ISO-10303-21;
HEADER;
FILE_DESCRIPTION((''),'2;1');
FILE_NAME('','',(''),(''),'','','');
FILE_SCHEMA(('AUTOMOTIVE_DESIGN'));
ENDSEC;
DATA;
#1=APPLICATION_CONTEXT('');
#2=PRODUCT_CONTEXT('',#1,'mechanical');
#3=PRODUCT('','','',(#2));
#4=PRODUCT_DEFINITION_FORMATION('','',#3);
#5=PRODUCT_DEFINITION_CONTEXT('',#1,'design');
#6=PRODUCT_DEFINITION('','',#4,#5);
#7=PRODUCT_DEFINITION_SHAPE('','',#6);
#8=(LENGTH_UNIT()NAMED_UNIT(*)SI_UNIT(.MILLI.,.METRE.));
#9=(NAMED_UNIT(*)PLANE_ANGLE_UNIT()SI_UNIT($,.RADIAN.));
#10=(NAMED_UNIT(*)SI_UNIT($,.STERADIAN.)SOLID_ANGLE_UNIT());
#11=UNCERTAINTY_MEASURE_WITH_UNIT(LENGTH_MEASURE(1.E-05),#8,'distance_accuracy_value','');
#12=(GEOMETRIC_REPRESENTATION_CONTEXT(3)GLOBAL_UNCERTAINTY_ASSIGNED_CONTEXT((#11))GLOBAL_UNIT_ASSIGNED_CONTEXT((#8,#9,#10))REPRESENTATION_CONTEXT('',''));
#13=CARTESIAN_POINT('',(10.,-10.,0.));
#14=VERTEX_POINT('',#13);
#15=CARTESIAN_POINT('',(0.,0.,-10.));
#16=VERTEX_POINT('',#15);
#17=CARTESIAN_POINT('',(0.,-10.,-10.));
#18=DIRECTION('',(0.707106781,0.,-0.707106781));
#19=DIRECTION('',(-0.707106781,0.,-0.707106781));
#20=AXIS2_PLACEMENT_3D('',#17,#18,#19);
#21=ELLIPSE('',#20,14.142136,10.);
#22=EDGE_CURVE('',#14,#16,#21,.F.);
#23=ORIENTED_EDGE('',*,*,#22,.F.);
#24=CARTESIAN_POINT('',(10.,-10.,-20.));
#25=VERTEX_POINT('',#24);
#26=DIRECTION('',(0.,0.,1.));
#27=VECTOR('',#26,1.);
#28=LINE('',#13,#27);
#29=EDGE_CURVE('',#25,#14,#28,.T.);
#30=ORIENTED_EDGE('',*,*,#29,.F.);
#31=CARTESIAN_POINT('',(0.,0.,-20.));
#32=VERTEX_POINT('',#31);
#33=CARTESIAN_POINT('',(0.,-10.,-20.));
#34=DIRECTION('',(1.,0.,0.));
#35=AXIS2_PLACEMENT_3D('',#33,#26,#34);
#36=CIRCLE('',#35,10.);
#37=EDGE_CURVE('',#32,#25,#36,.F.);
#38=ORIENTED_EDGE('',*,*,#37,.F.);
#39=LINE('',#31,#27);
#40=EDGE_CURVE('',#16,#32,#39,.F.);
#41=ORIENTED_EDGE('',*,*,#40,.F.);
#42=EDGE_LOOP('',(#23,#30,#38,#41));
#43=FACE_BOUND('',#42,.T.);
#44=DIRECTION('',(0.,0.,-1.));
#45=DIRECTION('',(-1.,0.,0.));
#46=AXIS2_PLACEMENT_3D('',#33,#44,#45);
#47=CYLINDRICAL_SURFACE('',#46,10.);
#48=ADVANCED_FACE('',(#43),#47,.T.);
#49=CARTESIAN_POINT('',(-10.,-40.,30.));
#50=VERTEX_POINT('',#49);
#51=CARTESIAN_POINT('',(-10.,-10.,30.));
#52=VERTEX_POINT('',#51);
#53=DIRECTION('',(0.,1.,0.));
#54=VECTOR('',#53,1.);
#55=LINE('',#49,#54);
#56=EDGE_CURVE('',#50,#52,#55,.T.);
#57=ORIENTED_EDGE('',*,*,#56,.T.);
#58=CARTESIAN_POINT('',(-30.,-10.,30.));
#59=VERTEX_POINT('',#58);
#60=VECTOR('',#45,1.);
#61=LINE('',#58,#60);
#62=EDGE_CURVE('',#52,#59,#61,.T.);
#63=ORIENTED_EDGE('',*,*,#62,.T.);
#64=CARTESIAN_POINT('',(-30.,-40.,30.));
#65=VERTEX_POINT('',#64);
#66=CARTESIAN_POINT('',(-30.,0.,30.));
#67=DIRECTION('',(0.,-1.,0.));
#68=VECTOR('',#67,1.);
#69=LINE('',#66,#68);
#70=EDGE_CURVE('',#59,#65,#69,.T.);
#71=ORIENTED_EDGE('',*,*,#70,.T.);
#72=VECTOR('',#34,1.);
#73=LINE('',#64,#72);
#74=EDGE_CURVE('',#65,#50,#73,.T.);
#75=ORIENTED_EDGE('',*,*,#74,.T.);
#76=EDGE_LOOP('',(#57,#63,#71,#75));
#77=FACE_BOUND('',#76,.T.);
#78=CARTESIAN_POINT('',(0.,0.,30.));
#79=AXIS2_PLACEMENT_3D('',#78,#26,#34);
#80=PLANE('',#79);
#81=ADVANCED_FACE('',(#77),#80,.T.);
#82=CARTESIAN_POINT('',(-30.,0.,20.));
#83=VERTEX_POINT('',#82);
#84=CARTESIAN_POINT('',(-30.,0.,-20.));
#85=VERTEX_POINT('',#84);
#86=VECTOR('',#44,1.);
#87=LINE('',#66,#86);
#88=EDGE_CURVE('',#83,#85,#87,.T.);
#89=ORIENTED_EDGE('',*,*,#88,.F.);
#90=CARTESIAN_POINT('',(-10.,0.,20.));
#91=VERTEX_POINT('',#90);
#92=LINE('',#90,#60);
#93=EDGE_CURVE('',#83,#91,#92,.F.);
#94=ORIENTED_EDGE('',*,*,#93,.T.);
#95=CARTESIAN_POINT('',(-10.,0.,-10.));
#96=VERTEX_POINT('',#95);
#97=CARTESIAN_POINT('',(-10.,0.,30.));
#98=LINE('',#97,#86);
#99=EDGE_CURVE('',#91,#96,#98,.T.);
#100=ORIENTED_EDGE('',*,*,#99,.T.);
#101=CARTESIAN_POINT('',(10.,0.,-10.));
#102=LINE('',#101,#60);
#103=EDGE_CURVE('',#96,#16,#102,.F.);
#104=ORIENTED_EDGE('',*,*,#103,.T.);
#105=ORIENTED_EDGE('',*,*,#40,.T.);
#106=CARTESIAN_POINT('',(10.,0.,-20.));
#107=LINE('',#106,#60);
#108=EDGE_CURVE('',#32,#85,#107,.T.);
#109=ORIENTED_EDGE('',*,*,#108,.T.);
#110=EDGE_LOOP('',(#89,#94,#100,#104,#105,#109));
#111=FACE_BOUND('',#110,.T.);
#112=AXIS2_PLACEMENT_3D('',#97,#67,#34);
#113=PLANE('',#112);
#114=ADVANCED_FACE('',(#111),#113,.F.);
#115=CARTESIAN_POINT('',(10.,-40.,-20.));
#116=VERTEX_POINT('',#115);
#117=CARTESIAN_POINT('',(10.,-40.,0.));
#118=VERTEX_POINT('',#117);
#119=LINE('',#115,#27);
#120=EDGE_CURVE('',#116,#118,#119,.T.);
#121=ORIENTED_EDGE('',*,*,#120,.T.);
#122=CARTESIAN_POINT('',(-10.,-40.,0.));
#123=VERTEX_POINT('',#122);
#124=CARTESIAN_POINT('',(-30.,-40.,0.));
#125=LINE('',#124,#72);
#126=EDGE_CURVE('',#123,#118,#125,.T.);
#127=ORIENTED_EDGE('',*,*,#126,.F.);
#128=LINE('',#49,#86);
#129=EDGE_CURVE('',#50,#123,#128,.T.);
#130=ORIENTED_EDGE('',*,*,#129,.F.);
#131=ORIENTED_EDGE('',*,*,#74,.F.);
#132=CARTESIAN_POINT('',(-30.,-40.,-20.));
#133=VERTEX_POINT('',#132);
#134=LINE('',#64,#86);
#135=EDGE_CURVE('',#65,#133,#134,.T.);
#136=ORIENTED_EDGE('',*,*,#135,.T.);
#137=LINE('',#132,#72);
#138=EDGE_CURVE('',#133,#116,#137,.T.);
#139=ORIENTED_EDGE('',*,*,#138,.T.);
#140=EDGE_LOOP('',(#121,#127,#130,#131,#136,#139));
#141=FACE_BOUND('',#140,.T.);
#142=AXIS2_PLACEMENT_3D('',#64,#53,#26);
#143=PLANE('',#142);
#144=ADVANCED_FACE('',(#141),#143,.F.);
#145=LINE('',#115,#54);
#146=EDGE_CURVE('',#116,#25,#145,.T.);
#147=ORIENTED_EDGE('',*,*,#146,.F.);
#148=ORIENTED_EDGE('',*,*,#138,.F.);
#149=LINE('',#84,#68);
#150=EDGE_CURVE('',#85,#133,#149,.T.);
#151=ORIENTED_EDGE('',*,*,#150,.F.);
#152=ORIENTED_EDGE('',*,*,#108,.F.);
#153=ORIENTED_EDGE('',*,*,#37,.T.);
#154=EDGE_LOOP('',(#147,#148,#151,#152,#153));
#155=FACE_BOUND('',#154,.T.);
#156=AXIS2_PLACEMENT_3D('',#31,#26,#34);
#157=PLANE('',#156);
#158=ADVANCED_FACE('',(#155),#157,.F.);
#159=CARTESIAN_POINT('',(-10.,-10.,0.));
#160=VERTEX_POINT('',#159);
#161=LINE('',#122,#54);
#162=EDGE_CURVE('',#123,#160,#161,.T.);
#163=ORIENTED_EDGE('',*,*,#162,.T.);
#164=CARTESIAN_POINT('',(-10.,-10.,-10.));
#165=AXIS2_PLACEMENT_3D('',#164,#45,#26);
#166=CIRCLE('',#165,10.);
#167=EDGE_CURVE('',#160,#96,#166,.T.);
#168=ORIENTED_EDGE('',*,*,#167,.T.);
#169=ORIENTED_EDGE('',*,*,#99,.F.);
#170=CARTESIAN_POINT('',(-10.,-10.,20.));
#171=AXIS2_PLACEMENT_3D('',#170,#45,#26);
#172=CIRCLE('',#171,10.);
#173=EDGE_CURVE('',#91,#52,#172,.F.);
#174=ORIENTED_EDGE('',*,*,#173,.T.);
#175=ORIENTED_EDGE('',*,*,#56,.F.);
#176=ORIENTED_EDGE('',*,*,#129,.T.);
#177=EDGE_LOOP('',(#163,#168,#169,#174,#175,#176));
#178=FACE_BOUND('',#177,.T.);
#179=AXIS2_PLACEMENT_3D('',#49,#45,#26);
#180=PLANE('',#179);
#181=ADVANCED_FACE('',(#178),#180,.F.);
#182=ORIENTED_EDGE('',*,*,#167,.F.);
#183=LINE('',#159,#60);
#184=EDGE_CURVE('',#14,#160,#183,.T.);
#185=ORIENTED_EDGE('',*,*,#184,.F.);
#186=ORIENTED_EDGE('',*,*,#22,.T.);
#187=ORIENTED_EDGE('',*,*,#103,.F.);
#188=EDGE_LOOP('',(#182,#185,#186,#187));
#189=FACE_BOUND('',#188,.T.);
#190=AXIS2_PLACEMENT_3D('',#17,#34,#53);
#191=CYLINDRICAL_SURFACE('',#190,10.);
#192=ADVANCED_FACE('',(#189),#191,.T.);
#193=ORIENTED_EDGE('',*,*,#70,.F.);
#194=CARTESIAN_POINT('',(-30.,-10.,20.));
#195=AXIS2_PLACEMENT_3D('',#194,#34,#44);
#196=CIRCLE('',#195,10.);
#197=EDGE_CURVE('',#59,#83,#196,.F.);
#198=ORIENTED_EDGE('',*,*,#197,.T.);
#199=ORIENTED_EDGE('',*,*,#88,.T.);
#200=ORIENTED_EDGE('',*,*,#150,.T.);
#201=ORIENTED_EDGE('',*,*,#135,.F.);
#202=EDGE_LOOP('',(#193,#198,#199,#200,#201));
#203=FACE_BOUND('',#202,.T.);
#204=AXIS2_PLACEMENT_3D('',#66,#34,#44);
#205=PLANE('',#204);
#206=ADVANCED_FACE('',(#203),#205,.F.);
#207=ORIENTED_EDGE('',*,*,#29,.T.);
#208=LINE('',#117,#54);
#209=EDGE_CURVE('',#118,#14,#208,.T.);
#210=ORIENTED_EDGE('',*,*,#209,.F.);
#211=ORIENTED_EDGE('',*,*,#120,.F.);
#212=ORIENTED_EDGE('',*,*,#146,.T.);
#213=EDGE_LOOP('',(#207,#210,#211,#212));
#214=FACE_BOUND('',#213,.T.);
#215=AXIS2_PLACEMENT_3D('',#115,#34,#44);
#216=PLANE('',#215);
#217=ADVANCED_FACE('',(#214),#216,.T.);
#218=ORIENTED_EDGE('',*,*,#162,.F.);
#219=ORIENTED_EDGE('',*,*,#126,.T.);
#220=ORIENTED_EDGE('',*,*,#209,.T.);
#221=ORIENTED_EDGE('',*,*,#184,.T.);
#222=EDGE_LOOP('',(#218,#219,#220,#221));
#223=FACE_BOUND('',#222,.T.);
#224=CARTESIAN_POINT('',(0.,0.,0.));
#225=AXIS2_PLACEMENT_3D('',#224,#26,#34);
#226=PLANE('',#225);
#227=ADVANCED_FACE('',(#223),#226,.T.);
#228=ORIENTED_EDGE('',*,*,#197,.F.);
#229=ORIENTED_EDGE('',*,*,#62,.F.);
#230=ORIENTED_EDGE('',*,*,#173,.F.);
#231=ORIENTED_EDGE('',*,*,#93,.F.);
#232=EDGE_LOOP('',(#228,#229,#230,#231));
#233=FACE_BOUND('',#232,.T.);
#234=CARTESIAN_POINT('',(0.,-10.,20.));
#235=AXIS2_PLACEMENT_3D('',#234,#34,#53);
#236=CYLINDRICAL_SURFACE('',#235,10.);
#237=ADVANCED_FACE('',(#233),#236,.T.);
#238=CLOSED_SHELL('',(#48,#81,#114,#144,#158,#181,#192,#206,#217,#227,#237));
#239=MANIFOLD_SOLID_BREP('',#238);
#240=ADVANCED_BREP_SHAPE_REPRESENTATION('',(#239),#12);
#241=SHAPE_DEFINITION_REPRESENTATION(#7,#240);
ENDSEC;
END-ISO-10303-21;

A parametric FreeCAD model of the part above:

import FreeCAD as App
import Part
import Sketcher
from FreeCAD import Vector


def edges_at(feature, points):
    """Names of the edges that pass closest to the given points."""
    edges = feature.Shape.Edges
    near = lambda p: min(range(len(edges)), key=lambda i: edges[i].distToShape(Part.Vertex(*p))[0])
    return sorted({f"Edge{near(p) + 1}" for p in points})

doc = App.newDocument("Part")
body = doc.addObject("PartDesign::Body", "Body")

# Sketch on XY plane
sketch1 = body.newObject("Sketcher::SketchObject", "Sketch")
sketch1.AttachmentSupport = (doc.getObject("XY_Plane"), [""])
sketch1.MapMode = "FlatFace"
sketch1.addGeometry(Part.LineSegment(Vector(-30, 0, 0), Vector(-30, -40, 0)), False)
sketch1.addGeometry(Part.LineSegment(Vector(-30, -40, 0), Vector(-10, -40, 0)), False)
sketch1.addGeometry(Part.LineSegment(Vector(-10, -40, 0), Vector(-10, 0, 0)), False)
sketch1.addGeometry(Part.LineSegment(Vector(-10, 0, 0), Vector(-30, 0, 0)), False)
sketch1.addConstraint(Sketcher.Constraint("Coincident", 0, 2, 1, 1))
sketch1.addConstraint(Sketcher.Constraint("Coincident", 1, 2, 2, 1))
sketch1.addConstraint(Sketcher.Constraint("Coincident", 2, 2, 3, 1))
sketch1.addConstraint(Sketcher.Constraint("Coincident", 3, 2, 0, 1))
sketch1.addConstraint(Sketcher.Constraint("Vertical", 0))
sketch1.addConstraint(Sketcher.Constraint("Horizontal", 1))
sketch1.addConstraint(Sketcher.Constraint("Vertical", 2))
sketch1.addConstraint(Sketcher.Constraint("Horizontal", 3))
sketch1.addConstraint(Sketcher.Constraint("PointOnObject", 2, 2, -1))
sketch1.addConstraint(Sketcher.Constraint("DistanceX", 1, 1, 1, 2, 20.0))
sketch1.addConstraint(Sketcher.Constraint("DistanceY", 0, 2, 0, 1, 40.0))
sketch1.addConstraint(Sketcher.Constraint("DistanceX", 0, 2, -1, 1, 30.0))
pad1 = body.newObject("PartDesign::Pad", "Pad")
pad1.Profile = sketch1
pad1.Length = 30

# Sketch on XY plane
sketch2 = body.newObject("Sketcher::SketchObject", "Sketch001")
sketch2.AttachmentSupport = (doc.getObject("XY_Plane"), [""])
sketch2.MapMode = "FlatFace"
sketch2.addGeometry(Part.LineSegment(Vector(-30, 0, 0), Vector(-30, -40, 0)), False)
sketch2.addGeometry(Part.LineSegment(Vector(-30, -40, 0), Vector(10, -40, 0)), False)
sketch2.addGeometry(Part.LineSegment(Vector(10, -40, 0), Vector(10, 0, 0)), False)
sketch2.addGeometry(Part.LineSegment(Vector(10, 0, 0), Vector(-30, 0, 0)), False)
sketch2.addConstraint(Sketcher.Constraint("Coincident", 0, 2, 1, 1))
sketch2.addConstraint(Sketcher.Constraint("Coincident", 1, 2, 2, 1))
sketch2.addConstraint(Sketcher.Constraint("Coincident", 2, 2, 3, 1))
sketch2.addConstraint(Sketcher.Constraint("Coincident", 3, 2, 0, 1))
sketch2.addConstraint(Sketcher.Constraint("Vertical", 0))
sketch2.addConstraint(Sketcher.Constraint("Horizontal", 1))
sketch2.addConstraint(Sketcher.Constraint("Vertical", 2))
sketch2.addConstraint(Sketcher.Constraint("Horizontal", 3))
sketch2.addConstraint(Sketcher.Constraint("PointOnObject", 2, 2, -1))
sketch2.addConstraint(Sketcher.Constraint("Equal", 3, 0))
sketch2.addConstraint(Sketcher.Constraint("DistanceX", 1, 1, 1, 2, 40.0))
sketch2.addConstraint(Sketcher.Constraint("DistanceX", 0, 2, -1, 1, 30.0))
pad2 = body.newObject("PartDesign::Pad", "Pad001")
pad2.Profile = sketch2
pad2.Length = 20
pad2.Reversed = True
doc.recompute()

fillet = body.newObject("PartDesign::Fillet", "Fillet")
fillet.Base = (pad2, edges_at(pad2, [(0, 0, 0), (10, 0, -10), (-20, 0, 30)]))
fillet.Radius = 10

doc.recompute()
